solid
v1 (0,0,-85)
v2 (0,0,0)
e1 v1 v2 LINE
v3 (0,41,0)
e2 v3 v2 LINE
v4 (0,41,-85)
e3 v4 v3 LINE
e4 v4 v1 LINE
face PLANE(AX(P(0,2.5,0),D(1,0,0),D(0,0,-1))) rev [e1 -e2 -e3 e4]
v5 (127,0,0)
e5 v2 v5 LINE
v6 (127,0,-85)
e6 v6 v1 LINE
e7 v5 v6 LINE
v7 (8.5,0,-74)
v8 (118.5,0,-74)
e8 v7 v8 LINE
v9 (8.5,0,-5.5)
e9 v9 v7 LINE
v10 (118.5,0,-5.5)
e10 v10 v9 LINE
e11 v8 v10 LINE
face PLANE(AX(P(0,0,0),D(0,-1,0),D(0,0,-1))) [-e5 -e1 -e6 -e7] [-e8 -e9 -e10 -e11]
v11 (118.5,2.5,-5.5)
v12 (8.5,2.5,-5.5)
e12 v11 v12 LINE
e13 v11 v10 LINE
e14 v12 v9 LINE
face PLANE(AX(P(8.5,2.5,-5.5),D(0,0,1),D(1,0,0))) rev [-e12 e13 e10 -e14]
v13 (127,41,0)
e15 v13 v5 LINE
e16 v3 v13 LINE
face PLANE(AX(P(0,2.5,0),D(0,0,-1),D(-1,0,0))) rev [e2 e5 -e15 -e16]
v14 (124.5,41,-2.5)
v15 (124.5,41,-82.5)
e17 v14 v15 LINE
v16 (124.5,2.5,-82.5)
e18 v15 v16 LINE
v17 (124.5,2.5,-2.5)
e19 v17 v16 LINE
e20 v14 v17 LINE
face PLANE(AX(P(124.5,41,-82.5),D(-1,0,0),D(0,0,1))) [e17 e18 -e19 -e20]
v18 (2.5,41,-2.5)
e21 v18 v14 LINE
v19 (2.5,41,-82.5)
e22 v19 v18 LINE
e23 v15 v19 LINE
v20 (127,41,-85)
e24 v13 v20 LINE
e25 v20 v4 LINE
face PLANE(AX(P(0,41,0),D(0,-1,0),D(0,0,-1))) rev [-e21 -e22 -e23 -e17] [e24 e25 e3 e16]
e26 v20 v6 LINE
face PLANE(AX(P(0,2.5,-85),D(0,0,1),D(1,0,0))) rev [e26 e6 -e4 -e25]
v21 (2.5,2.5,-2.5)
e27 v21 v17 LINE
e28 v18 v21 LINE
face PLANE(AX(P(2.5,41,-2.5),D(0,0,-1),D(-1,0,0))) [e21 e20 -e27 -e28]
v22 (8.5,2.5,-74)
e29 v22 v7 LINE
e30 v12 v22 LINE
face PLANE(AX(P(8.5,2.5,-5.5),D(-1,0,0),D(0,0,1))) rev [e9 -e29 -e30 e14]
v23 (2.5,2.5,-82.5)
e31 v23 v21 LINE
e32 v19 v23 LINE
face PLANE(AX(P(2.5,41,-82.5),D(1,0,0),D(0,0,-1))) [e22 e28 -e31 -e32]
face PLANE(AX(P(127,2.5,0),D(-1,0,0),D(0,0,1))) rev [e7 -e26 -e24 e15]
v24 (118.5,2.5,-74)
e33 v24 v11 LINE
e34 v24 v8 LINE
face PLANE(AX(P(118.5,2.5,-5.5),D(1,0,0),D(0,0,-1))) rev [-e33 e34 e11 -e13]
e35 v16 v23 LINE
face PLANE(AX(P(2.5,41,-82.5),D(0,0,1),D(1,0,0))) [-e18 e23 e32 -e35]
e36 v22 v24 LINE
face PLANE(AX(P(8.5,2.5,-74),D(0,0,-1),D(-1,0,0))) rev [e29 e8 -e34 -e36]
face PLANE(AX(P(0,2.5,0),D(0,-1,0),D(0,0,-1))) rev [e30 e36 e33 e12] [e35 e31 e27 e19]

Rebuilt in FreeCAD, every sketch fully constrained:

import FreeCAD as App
import Part
import Sketcher
from FreeCAD import Vector
Q = App.Units.Quantity


def add_polygon(sketch, points):
    """Adds a closed chain of lines whose ends are joined by coincident constraints."""
    first, n = sketch.GeometryCount, len(points)
    for a, b in zip(points, points[1:] + points[:1]):
        sketch.addGeometry(Part.LineSegment(App.Vector(*a, 0), App.Vector(*b, 0)), False)
    for i in range(n):
        sketch.addConstraint(Sketcher.Constraint("Coincident", first + i, 2, first + (i + 1) % n, 1))

doc = App.newDocument("Part")
body = doc.addObject("PartDesign::Body", "Body")

# Sketch on XZ plane
sketch1 = body.newObject("Sketcher::SketchObject", "Sketch")
sketch1.AttachmentSupport = (doc.getObject("XZ_Plane"), [""])
sketch1.MapMode = "FlatFace"
add_polygon(sketch1, [(0, -85), (0, 0), (127, 0), (127, -85)])  # lines 0-3
sketch1.addConstraint([
    Sketcher.Constraint("Vertical", 0),
    Sketcher.Constraint("Horizontal", 1),
    Sketcher.Constraint("Vertical", 2),
    Sketcher.Constraint("Horizontal", 3),
    Sketcher.Constraint("Coincident", 0, 2, -1, 1),
    Sketcher.Constraint("DistanceX", 1, 1, 1, 2, Q("127 mm")),
    Sketcher.Constraint("DistanceY", 0, 1, 0, 2, Q("85 mm")),
])
pad1 = body.newObject("PartDesign::Pad", "Pad")
pad1.Profile = sketch1
pad1.Length = 2.5
pad1.Reversed = True

# Sketch on XZ plane
sketch2 = body.newObject("Sketcher::SketchObject", "Sketch001")
sketch2.AttachmentSupport = (doc.getObject("XZ_Plane"), [""])
sketch2.MapMode = "FlatFace"
sketch2.AttachmentOffset = App.Placement(Vector(0, 0, -2.5), App.Rotation())
add_polygon(sketch2, [(0, -85), (0, 0), (127, 0), (127, -85)])  # lines 0-3
add_polygon(sketch2, [(124.5, -2.5), (2.5, -2.5), (2.5, -82.5), (124.5, -82.5)])  # lines 4-7
sketch2.addConstraint([
    Sketcher.Constraint("Vertical", 0),
    Sketcher.Constraint("Horizontal", 1),
    Sketcher.Constraint("Vertical", 2),
    Sketcher.Constraint("Horizontal", 3),
    Sketcher.Constraint("Horizontal", 4),
    Sketcher.Constraint("Vertical", 5),
    Sketcher.Constraint("Horizontal", 6),
    Sketcher.Constraint("Vertical", 7),
    Sketcher.Constraint("Coincident", 0, 2, -1, 1),
    Sketcher.Constraint("DistanceX", 1, 1, 1, 2, Q("127 mm")),
    Sketcher.Constraint("DistanceX", 4, 2, 4, 1, Q("122 mm")),
    Sketcher.Constraint("DistanceY", 0, 1, 0, 2, Q("85 mm")),
    Sketcher.Constraint("DistanceY", 5, 2, 5, 1, Q("80 mm")),
    Sketcher.Constraint("DistanceX", -1, 1, 4, 2, Q("2.5 mm")),
    Sketcher.Constraint("DistanceY", 4, 2, -1, 1, Q("2.5 mm")),
])
pad2 = body.newObject("PartDesign::Pad", "Pad001")
pad2.Profile = sketch2
pad2.Length = 38.5
pad2.Reversed = True

# Sketch on XZ plane
sketch3 = body.newObject("Sketcher::SketchObject", "Sketch002")
sketch3.AttachmentSupport = (doc.getObject("XZ_Plane"), [""])
sketch3.MapMode = "FlatFace"
add_polygon(sketch3, [(118.5, -74), (118.5, -5.5), (8.5, -5.5), (8.5, -74)])  # lines 0-3
sketch3.addConstraint([
    Sketcher.Constraint("Vertical", 0),
    Sketcher.Constraint("Horizontal", 1),
    Sketcher.Constraint("Vertical", 2),
    Sketcher.Constraint("Horizontal", 3),
    Sketcher.Constraint("DistanceX", 1, 2, 1, 1, Q("110 mm")),
    Sketcher.Constraint("DistanceY", 0, 1, 0, 2, Q("68.5 mm")),
    Sketcher.Constraint("DistanceY", 2, 2, -1, 1, Q("74 mm")),
    Sketcher.Constraint("DistanceX", -1, 1, 0, 2, Q("118.5 mm")),
])
pocket1 = body.newObject("PartDesign::Pocket", "Pocket")
pocket1.Profile = sketch3
pocket1.Length = 2.5

doc.recompute()
